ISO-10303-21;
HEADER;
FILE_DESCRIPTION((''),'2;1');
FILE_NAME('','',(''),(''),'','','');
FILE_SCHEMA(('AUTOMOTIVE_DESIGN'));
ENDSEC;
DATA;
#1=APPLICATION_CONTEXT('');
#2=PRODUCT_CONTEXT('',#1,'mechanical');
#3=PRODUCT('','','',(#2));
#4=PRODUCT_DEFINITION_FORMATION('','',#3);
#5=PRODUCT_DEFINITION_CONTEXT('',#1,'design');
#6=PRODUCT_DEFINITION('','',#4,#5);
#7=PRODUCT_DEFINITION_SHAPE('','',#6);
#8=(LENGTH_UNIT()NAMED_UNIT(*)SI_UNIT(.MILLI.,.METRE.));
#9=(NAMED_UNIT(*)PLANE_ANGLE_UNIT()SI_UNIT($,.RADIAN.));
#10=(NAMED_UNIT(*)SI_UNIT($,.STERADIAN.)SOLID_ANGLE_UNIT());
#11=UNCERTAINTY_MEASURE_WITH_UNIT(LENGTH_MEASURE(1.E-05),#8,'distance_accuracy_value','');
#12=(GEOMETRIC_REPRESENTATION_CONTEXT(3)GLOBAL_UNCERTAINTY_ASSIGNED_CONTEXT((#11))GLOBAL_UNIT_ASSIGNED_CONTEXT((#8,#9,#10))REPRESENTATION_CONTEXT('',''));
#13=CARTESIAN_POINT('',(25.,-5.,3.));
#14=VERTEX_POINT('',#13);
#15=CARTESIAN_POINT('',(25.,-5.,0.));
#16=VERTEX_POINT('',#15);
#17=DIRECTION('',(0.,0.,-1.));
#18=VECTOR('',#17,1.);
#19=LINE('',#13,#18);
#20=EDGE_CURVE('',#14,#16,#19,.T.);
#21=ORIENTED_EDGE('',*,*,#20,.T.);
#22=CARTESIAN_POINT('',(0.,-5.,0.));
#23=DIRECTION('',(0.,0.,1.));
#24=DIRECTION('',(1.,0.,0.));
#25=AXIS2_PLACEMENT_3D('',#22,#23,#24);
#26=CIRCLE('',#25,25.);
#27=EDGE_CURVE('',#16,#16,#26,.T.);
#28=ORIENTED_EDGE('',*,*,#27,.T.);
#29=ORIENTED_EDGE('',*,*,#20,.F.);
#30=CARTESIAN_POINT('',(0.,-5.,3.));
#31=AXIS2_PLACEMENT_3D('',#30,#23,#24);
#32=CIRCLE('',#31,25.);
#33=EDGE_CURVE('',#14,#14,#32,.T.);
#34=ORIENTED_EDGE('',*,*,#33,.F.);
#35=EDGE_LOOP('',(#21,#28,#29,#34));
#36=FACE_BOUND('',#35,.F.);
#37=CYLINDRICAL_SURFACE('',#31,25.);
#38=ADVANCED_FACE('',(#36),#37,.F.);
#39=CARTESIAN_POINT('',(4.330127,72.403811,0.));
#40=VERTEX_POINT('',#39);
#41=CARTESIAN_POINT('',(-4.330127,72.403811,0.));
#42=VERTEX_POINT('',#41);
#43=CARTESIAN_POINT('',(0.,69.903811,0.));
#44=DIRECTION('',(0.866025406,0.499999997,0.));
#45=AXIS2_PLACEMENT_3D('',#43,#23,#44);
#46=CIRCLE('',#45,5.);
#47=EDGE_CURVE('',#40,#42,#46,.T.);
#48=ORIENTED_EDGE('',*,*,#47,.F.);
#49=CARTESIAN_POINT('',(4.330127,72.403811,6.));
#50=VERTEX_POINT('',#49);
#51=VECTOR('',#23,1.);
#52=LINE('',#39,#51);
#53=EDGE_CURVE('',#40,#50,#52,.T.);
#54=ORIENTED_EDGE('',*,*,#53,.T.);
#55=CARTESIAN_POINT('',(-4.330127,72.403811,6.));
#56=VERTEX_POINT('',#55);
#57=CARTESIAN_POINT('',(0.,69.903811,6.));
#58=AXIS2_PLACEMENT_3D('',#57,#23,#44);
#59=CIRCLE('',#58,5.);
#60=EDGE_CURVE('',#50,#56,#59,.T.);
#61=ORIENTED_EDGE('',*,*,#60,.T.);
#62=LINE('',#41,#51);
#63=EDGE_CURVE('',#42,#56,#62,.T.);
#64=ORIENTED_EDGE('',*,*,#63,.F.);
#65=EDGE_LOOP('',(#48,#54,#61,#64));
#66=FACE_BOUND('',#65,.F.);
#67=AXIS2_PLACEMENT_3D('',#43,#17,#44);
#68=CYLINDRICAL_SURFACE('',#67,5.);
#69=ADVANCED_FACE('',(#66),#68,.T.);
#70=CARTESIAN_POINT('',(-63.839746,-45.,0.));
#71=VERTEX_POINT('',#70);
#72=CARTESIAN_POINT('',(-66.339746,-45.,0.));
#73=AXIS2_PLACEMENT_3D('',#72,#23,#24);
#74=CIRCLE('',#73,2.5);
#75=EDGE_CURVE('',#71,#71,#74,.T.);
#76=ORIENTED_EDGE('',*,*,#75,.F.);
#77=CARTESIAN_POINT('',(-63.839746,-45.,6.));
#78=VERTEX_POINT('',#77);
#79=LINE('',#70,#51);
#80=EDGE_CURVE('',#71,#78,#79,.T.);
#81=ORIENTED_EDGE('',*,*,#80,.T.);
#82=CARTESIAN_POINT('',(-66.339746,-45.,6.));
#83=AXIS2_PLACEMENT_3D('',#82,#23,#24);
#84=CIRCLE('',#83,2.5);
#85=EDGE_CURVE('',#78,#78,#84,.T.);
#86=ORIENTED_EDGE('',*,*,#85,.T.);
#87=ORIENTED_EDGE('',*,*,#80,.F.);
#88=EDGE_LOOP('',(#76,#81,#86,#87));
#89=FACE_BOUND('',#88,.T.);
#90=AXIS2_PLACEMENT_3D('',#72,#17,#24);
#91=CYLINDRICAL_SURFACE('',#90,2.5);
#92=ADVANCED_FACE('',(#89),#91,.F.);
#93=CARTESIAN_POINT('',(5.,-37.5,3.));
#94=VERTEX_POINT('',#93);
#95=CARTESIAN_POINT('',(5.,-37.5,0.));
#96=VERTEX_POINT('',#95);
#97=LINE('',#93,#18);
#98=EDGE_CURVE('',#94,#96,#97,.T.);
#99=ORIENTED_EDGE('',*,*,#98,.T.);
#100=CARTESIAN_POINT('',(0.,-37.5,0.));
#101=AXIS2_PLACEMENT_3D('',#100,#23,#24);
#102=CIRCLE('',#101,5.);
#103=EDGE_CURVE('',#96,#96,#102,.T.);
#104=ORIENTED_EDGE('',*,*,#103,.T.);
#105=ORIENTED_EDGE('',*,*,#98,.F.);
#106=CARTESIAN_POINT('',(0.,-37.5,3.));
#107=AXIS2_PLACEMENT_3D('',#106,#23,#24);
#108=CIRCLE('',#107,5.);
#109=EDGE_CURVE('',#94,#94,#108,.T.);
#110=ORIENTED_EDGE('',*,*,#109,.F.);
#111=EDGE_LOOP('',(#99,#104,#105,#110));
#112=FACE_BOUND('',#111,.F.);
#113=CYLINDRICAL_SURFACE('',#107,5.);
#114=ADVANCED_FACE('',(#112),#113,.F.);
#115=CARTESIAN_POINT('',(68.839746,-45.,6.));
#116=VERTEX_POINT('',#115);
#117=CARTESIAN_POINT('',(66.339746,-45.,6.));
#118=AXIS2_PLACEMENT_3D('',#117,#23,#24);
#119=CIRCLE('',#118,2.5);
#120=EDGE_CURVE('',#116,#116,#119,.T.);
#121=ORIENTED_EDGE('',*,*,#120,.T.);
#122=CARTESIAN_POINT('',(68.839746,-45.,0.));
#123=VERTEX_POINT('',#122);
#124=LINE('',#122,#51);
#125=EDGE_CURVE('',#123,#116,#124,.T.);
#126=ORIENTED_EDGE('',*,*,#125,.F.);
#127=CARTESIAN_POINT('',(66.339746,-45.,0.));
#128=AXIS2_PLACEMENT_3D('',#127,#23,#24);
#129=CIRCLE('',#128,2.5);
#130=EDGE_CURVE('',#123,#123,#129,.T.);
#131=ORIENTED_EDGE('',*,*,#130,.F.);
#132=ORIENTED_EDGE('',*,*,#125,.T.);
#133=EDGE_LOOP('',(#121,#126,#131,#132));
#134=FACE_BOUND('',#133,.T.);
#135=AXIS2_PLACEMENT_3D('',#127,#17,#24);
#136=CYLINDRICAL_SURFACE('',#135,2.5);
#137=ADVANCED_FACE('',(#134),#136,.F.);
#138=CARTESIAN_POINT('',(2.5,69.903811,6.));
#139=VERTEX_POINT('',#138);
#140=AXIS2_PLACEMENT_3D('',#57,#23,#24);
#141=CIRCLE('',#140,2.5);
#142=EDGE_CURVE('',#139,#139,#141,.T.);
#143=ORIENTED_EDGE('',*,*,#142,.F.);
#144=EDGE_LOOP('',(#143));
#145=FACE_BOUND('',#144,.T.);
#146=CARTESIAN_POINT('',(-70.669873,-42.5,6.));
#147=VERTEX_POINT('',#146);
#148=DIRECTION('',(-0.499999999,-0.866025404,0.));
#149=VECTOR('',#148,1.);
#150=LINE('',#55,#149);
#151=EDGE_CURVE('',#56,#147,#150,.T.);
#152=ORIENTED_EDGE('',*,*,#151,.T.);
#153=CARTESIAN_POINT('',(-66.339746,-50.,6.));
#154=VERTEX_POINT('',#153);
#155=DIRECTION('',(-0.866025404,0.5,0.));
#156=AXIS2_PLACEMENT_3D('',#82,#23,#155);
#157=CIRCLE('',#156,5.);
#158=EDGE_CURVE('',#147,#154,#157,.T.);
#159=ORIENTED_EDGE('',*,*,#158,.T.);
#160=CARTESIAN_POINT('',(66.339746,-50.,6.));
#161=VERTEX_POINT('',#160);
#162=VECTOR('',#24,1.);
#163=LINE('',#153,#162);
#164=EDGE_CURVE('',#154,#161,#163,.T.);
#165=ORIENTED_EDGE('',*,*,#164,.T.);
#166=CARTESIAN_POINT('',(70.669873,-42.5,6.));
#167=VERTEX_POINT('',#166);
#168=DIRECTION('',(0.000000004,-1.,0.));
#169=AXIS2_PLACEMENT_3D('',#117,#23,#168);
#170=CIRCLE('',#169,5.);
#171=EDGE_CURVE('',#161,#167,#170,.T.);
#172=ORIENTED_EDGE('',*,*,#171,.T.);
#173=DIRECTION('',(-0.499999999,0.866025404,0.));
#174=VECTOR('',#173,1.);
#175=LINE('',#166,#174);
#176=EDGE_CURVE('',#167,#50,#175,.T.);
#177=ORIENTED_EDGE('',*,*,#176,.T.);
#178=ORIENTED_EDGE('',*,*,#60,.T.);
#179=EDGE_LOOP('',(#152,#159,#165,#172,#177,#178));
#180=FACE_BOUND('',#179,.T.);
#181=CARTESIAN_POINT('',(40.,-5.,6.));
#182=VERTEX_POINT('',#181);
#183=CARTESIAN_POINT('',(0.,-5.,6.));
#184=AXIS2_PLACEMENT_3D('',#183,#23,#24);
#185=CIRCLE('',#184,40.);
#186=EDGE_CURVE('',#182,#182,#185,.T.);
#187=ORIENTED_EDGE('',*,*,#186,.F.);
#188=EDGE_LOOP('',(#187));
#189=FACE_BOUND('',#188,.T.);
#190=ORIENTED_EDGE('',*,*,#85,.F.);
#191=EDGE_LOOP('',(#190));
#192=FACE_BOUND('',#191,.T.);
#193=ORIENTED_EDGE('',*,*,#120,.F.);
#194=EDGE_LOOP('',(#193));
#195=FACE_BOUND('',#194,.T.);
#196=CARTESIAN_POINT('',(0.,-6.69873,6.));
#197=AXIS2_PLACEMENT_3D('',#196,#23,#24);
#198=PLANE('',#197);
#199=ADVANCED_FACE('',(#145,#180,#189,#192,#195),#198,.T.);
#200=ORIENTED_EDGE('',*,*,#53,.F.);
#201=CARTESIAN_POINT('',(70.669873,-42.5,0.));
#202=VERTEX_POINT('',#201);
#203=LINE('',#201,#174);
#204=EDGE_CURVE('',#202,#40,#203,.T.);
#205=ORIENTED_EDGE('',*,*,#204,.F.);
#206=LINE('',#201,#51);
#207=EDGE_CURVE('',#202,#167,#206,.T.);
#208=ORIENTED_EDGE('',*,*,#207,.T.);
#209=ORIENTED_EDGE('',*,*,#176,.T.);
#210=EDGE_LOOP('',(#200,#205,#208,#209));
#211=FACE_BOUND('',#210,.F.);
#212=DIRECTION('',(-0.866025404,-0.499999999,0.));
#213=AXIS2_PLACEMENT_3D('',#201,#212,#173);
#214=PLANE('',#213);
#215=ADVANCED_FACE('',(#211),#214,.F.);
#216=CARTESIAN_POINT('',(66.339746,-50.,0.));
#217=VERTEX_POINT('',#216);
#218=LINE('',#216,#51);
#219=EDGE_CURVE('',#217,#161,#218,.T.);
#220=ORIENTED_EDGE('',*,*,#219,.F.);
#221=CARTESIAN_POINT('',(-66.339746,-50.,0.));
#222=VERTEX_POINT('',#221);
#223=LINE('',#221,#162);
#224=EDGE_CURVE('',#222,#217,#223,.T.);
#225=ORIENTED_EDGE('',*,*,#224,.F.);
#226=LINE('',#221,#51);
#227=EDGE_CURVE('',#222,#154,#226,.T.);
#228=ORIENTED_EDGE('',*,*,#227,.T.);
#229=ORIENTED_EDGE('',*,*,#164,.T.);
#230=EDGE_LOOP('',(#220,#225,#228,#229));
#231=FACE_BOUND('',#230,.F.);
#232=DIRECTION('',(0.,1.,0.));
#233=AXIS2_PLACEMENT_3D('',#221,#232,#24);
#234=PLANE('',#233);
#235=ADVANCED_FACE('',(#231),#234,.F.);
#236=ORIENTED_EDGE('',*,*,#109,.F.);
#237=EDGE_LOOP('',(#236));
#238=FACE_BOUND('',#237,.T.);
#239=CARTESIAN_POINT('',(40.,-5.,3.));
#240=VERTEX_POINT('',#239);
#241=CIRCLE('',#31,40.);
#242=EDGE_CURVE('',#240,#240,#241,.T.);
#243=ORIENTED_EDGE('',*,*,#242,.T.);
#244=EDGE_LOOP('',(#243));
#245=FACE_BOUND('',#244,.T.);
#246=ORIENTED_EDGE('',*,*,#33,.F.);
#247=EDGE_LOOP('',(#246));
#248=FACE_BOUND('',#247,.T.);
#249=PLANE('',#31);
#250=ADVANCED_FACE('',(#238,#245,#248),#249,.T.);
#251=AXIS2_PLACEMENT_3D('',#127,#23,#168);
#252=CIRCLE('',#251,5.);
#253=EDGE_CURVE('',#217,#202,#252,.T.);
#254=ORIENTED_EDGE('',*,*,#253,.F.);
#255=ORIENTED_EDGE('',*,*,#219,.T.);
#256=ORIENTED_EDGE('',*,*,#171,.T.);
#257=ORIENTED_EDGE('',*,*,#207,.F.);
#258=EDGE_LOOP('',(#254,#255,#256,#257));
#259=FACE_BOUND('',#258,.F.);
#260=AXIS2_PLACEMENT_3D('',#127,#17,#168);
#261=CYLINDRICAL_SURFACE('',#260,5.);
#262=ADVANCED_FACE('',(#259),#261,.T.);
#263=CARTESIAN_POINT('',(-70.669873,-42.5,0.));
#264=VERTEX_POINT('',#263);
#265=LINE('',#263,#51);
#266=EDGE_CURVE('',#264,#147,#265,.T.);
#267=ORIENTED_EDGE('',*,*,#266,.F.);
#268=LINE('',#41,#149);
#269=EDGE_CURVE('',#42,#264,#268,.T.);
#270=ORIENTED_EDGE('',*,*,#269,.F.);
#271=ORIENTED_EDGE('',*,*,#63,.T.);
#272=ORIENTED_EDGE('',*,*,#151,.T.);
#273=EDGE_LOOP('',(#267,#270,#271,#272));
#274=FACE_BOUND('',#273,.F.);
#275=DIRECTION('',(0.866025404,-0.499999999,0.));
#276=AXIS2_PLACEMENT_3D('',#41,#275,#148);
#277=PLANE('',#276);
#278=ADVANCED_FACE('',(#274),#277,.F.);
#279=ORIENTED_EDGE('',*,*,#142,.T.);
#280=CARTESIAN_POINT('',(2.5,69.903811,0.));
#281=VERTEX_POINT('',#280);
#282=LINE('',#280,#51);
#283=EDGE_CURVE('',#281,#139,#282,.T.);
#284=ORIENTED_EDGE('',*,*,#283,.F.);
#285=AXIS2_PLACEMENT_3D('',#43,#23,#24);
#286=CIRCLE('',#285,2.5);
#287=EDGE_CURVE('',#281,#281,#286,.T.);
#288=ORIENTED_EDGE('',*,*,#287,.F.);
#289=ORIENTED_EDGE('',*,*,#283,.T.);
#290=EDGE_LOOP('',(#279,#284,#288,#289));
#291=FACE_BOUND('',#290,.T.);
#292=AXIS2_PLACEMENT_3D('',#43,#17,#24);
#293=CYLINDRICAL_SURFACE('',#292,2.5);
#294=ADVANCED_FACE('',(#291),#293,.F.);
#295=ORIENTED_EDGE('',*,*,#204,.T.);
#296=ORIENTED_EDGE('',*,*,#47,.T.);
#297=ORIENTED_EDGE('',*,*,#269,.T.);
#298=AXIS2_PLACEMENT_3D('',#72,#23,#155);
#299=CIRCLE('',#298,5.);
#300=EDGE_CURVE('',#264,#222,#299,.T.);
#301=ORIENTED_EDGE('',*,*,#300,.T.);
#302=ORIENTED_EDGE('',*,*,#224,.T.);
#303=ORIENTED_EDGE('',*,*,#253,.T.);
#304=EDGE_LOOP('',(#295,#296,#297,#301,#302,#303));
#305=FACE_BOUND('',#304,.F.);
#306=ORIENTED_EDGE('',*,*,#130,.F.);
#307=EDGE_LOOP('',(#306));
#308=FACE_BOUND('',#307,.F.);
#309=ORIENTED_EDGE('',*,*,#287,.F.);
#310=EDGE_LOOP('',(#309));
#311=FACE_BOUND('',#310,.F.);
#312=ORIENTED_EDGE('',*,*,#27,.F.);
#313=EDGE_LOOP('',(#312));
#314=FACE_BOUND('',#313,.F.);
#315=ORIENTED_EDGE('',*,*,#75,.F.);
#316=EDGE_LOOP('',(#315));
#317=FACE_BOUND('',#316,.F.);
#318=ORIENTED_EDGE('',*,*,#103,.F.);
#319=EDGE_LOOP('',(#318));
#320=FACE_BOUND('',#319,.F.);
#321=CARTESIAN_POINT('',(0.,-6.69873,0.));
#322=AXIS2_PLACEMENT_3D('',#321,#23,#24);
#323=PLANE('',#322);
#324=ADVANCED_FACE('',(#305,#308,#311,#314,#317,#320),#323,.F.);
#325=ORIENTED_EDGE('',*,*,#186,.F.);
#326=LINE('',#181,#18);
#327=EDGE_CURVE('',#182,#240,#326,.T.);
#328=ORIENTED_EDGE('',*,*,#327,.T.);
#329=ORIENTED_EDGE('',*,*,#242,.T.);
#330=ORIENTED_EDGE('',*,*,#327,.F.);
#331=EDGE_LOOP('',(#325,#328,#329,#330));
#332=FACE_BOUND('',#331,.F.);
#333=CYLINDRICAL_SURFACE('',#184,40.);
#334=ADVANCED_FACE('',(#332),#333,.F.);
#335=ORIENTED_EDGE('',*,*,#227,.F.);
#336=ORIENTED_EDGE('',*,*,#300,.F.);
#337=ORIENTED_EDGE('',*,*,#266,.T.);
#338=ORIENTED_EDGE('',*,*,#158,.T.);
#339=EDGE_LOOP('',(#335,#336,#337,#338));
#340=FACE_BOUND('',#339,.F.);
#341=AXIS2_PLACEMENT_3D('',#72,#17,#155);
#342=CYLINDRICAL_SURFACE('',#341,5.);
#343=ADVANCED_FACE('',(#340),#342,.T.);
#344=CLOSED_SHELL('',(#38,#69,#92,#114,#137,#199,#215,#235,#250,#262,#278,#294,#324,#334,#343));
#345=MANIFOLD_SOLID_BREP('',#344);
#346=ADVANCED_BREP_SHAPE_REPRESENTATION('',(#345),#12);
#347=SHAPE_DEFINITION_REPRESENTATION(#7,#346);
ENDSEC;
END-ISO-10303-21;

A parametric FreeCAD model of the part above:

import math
import FreeCAD as App
import Part
import Sketcher
Q = App.Units.Quantity

doc = App.newDocument("Part")
body = doc.addObject("PartDesign::Body", "Body")

# Sketch on XY plane
sketch1 = doc.addObject("Sketcher::SketchObject", "Sketch")
body.addObject(sketch1)
sketch1.AttachmentSupport = (doc.XY_Plane, [""])
sketch1.MapMode = "FlatFace"
sketch1.addGeometry(Part.ArcOfCircle(Part.Circle(App.Vector(0, 69.9, 0), App.Vector(0, 0, 1), 5), math.radians(30), math.radians(150)), False)
sketch1.addGeometry(Part.LineSegment(App.Vector(-4.3, 72.4, 0), App.Vector(-70.7, -42.5, 0)), False)
sketch1.addGeometry(Part.ArcOfCircle(Part.Circle(App.Vector(-66.3, -45, 0), App.Vector(0, 0, 1), 5), math.radians(150), math.radians(270)), False)
sketch1.addGeometry(Part.LineSegment(App.Vector(-66.3, -50, 0), App.Vector(66.3, -50, 0)), False)
sketch1.addGeometry(Part.ArcOfCircle(Part.Circle(App.Vector(66.3, -45, 0), App.Vector(0, 0, 1), 5), math.radians(-90), math.radians(30)), False)
sketch1.addGeometry(Part.LineSegment(App.Vector(70.7, -42.5, 0), App.Vector(4.3, 72.4, 0)), False)
sketch1.addGeometry(Part.Circle(App.Vector(-66.3, -45, 0), App.Vector(0, 0, 1), 2.5), False)
sketch1.addGeometry(Part.Circle(App.Vector(66.3, -45, 0), App.Vector(0, 0, 1), 2.5), False)
sketch1.addGeometry(Part.Circle(App.Vector(0, 69.9, 0), App.Vector(0, 0, 1), 2.5), False)
sketch1.addConstraint(Sketcher.Constraint("Tangent", 0, 2, 1, 1))
sketch1.addConstraint(Sketcher.Constraint("Tangent", 1, 2, 2, 1))
sketch1.addConstraint(Sketcher.Constraint("Tangent", 2, 2, 3, 1))
sketch1.addConstraint(Sketcher.Constraint("Tangent", 3, 2, 4, 1))
sketch1.addConstraint(Sketcher.Constraint("Tangent", 4, 2, 5, 1))
sketch1.addConstraint(Sketcher.Constraint("Tangent", 5, 2, 0, 1))
sketch1.addConstraint(Sketcher.Constraint("Horizontal", 3))
sketch1.addConstraint(Sketcher.Constraint("Coincident", 6, 3, 2, 3))
sketch1.addConstraint(Sketcher.Constraint("Coincident", 7, 3, 4, 3))
sketch1.addConstraint(Sketcher.Constraint("Coincident", 8, 3, 0, 3))
sketch1.addConstraint(Sketcher.Constraint("Equal", 0, 2))
sketch1.addConstraint(Sketcher.Constraint("Equal", 2, 4))
sketch1.addConstraint(Sketcher.Constraint("Equal", 6, 7))
sketch1.addConstraint(Sketcher.Constraint("Equal", 7, 8))
sketch1.addConstraint(Sketcher.Constraint("Symmetric", 1, 2, 4, 2, -2))
sketch1.addConstraint(Sketcher.Constraint("Diameter", 6, 5.0))
sketch1.addConstraint(Sketcher.Constraint("Radius", 0, 5.0))
sketch1.addConstraint(Sketcher.Constraint("Angle", 1, Q("-120 deg")))
sketch1.addConstraint(Sketcher.Constraint("DistanceY", 2, 3, -1, 1, 45.0))
sketch1.addConstraint(Sketcher.Constraint("DistanceX", 3, 1, 3, 2, 132.679492))
pad1 = doc.addObject("PartDesign::Pad", "Pad")
body.addObject(pad1)
pad1.Profile = sketch1
pad1.Length = 6

# Sketch on XY plane
sketch2 = doc.addObject("Sketcher::SketchObject", "Sketch001")
body.addObject(sketch2)
sketch2.AttachmentSupport = (doc.XY_Plane, [""])
sketch2.MapMode = "FlatFace"
sketch2.AttachmentOffset = App.Placement(App.Vector(0, 0, 6), App.Rotation())
sketch2.addGeometry(Part.Circle(App.Vector(0, -5, 0), App.Vector(0, 0, 1), 40), False)
sketch2.addConstraint(Sketcher.Constraint("PointOnObject", 0, 3, -2))
sketch2.addConstraint(Sketcher.Constraint("Diameter", 0, 80.0))
sketch2.addConstraint(Sketcher.Constraint("DistanceY", 0, 3, -1, 1, 5.0))
pocket1 = doc.addObject("PartDesign::Pocket", "Pocket")
body.addObject(pocket1)
pocket1.Profile = sketch2
pocket1.Length = 3

# Sketch on XY plane
sketch3 = doc.addObject("Sketcher::SketchObject", "Sketch002")
body.addObject(sketch3)
sketch3.AttachmentSupport = (doc.XY_Plane, [""])
sketch3.MapMode = "FlatFace"
sketch3.AttachmentOffset = App.Placement(App.Vector(0, 0, 3), App.Rotation())
sketch3.addGeometry(Part.Circle(App.Vector(0, -5, 0), App.Vector(0, 0, 1), 25), False)
sketch3.addConstraint(Sketcher.Constraint("PointOnObject", 0, 3, -2))
sketch3.addConstraint(Sketcher.Constraint("Diameter", 0, 50.0))
sketch3.addConstraint(Sketcher.Constraint("DistanceY", 0, 3, -1, 1, 5.0))
pocket2 = doc.addObject("PartDesign::Pocket", "Pocket001")
body.addObject(pocket2)
pocket2.Profile = sketch3
pocket2.Length = 25

# Sketch on XY plane
sketch4 = doc.addObject("Sketcher::SketchObject", "Sketch003")
body.addObject(sketch4)
sketch4.AttachmentSupport = (doc.XY_Plane, [""])
sketch4.MapMode = "FlatFace"
sketch4.AttachmentOffset = App.Placement(App.Vector(0, 0, 3), App.Rotation())
sketch4.addGeometry(Part.Circle(App.Vector(0, -38, 0), App.Vector(0, 0, 1), 5), False)
sketch4.addConstraint(Sketcher.Constraint("PointOnObject", 0, 3, -2))
sketch4.addConstraint(Sketcher.Constraint("Diameter", 0, 10.0))
sketch4.addConstraint(Sketcher.Constraint("DistanceY", 0, 3, -1, 1, 37.5))
pocket3 = doc.addObject("PartDesign::Pocket", "Pocket002")
body.addObject(pocket3)
pocket3.Profile = sketch4
pocket3.Length = 25

doc.recompute()
